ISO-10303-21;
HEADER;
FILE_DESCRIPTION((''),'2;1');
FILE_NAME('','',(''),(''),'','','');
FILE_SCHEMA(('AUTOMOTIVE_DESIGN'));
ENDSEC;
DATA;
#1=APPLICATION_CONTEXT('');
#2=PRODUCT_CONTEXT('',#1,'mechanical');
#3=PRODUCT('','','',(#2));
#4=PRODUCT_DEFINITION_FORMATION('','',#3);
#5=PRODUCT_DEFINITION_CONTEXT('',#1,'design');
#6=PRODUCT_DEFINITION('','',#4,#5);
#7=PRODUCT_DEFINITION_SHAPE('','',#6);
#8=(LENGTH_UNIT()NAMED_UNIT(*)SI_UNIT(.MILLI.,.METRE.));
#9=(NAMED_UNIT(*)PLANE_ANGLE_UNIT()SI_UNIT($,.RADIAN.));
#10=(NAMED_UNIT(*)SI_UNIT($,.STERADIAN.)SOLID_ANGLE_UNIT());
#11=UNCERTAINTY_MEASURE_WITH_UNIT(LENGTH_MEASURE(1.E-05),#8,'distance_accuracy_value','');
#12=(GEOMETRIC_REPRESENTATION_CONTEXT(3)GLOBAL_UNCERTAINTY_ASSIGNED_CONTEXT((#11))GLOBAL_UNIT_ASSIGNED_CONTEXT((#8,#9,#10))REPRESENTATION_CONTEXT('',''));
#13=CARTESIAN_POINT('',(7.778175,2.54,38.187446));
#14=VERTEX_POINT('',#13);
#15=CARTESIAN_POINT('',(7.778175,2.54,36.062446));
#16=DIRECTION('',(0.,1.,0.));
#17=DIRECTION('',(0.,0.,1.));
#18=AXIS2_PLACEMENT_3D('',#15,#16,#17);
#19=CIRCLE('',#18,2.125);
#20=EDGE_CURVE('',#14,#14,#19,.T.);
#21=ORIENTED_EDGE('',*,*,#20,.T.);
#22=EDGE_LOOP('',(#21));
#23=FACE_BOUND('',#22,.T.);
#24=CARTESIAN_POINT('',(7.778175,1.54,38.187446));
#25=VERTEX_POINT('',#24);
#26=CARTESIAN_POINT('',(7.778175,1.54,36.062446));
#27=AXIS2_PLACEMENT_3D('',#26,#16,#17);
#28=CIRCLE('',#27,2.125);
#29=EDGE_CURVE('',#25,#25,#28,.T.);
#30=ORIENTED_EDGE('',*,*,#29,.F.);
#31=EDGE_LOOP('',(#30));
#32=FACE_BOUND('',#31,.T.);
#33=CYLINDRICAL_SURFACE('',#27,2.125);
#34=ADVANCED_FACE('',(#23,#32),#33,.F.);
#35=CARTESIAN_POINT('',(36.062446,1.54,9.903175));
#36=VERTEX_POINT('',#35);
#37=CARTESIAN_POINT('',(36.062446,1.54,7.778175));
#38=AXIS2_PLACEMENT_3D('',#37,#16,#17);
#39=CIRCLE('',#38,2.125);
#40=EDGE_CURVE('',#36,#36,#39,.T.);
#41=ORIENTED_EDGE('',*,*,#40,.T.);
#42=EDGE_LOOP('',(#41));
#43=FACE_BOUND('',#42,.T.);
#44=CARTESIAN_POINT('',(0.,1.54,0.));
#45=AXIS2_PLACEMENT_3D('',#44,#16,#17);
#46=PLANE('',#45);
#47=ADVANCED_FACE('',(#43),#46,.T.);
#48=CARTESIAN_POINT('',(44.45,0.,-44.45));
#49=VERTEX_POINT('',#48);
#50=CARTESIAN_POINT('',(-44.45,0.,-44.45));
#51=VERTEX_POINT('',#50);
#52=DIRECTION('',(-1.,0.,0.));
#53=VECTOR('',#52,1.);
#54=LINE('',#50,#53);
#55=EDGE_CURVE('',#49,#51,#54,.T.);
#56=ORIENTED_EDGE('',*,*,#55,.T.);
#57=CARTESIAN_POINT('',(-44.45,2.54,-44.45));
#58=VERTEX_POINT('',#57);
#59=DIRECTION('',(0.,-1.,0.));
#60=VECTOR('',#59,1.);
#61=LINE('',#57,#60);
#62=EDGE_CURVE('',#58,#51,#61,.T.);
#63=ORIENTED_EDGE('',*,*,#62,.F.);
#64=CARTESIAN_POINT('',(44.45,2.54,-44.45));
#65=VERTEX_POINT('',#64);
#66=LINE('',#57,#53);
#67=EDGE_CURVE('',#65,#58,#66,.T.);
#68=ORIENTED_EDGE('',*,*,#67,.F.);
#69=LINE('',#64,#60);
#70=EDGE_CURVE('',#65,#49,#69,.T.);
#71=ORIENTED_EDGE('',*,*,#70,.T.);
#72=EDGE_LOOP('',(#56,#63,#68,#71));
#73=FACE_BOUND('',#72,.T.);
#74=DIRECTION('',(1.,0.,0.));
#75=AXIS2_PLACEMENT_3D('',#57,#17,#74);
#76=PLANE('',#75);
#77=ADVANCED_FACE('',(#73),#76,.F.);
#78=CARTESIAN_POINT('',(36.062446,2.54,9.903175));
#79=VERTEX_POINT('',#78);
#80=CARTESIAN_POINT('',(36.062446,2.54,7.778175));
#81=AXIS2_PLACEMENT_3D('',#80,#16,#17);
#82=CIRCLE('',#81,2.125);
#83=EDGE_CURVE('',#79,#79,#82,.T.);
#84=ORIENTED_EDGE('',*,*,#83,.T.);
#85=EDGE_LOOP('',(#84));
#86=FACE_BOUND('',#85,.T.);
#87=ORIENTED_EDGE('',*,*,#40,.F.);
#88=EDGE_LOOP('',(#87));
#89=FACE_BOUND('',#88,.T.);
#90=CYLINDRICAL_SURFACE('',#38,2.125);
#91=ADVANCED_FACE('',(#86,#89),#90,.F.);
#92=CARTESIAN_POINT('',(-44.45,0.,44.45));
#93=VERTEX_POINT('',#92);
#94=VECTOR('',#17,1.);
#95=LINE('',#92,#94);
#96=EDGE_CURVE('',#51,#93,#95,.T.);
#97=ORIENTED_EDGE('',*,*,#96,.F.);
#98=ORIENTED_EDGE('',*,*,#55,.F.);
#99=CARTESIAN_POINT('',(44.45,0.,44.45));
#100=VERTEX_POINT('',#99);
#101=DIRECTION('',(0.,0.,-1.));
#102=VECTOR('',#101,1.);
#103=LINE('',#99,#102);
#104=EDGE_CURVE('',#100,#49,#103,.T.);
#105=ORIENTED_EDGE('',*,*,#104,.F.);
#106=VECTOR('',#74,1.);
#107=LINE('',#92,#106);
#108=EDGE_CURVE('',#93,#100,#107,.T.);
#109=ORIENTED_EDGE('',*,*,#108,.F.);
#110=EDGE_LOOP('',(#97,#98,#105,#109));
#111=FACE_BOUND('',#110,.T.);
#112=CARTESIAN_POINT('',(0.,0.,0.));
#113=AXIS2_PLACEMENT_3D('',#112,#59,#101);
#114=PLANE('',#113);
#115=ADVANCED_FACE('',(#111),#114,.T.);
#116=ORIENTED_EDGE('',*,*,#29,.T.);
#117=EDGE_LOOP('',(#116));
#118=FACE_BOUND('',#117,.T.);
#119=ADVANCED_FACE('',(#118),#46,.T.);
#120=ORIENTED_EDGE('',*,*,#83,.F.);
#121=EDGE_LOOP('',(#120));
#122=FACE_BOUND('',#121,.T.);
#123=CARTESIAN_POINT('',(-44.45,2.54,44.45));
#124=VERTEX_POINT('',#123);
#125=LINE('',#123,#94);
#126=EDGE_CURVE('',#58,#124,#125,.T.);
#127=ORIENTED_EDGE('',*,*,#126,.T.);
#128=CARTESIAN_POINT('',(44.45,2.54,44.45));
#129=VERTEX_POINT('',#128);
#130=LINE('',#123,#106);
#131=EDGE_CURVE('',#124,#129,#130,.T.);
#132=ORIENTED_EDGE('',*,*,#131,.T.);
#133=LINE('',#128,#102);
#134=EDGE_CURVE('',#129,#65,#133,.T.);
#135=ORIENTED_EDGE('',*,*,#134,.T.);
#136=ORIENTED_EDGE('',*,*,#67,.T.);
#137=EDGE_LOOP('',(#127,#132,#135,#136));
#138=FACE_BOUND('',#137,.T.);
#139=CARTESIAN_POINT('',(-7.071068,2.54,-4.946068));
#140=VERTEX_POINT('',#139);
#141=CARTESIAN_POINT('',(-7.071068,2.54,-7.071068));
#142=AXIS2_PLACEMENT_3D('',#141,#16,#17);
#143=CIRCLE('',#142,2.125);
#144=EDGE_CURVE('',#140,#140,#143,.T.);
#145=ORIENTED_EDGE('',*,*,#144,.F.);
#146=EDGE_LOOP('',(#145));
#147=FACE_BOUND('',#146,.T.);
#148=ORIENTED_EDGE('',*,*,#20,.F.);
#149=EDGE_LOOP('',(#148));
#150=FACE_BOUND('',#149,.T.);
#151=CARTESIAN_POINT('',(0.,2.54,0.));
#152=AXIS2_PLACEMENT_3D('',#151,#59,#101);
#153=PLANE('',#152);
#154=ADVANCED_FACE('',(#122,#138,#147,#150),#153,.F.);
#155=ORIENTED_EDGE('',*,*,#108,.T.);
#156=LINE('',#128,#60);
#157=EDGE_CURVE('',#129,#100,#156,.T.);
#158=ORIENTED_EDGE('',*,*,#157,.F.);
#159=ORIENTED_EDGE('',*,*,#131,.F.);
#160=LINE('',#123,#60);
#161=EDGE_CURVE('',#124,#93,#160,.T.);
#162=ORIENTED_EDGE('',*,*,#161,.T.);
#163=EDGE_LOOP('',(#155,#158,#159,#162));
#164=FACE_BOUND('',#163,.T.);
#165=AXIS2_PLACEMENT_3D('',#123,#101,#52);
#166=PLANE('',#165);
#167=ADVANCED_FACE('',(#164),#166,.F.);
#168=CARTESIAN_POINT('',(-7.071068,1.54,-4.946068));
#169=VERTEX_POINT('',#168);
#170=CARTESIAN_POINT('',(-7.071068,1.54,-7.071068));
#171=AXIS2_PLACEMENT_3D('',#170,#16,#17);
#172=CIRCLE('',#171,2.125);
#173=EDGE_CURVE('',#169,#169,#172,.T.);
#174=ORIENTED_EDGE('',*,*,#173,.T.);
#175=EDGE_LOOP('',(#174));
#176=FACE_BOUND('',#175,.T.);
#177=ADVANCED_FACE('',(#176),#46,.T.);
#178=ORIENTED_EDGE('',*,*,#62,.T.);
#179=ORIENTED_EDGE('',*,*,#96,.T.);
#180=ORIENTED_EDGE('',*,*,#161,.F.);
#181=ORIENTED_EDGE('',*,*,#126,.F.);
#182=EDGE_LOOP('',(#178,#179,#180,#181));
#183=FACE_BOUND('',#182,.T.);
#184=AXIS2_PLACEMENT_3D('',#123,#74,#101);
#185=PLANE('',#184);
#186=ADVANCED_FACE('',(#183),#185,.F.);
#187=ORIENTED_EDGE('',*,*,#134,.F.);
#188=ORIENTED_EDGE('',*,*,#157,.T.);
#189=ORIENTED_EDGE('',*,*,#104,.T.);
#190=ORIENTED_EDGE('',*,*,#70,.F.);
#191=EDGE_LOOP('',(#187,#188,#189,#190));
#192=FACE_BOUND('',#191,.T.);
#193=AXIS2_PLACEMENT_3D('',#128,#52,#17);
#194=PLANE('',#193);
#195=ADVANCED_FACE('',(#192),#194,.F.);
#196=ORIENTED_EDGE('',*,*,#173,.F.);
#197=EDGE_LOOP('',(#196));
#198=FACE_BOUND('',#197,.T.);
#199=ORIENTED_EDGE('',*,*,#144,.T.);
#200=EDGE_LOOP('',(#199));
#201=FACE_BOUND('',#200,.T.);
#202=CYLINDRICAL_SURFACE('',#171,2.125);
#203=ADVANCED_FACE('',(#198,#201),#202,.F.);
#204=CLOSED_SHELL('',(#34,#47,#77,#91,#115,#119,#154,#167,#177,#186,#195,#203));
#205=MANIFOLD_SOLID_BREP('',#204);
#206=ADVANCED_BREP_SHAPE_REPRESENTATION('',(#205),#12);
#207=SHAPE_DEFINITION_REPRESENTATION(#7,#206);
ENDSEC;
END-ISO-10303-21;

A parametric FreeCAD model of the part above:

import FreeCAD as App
import Part
import Sketcher
Q = App.Units.Quantity

doc = App.newDocument("Part")
body = doc.addObject("PartDesign::Body", "Body")

sketch1 = body.newObject("Sketcher::SketchObject", "Sketch")
sketch1.AttachmentSupport = (doc.getObject("XZ_Plane"), [""])
sketch1.MapMode = "FlatFace"
sketch1.addGeometry([
    Part.LineSegment(App.Vector(-44, -44, 0), App.Vector(-44, 44, 0)),
    Part.LineSegment(App.Vector(-44, 44, 0), App.Vector(44, 44, 0)),
    Part.LineSegment(App.Vector(44, 44, 0), App.Vector(44, -44, 0)),
    Part.LineSegment(App.Vector(44, -44, 0), App.Vector(-44, -44, 0)),
], False)
sketch1.addConstraint([
    Sketcher.Constraint("Coincident", 0, 2, 1, 1),
    Sketcher.Constraint("Coincident", 1, 2, 2, 1),
    Sketcher.Constraint("Coincident", 2, 2, 3, 1),
    Sketcher.Constraint("Coincident", 3, 2, 0, 1),
    Sketcher.Constraint("Vertical", 0),
    Sketcher.Constraint("Horizontal", 1),
    Sketcher.Constraint("Vertical", 2),
    Sketcher.Constraint("Horizontal", 3),
    Sketcher.Constraint("Symmetric", 0, 2, 2, 2, -1, 1),
    Sketcher.Constraint("Equal", 3, 0),
    Sketcher.Constraint("DistanceX", 1, 1, 1, 2, Q("3.5 in")),
])
pad1 = body.newObject("PartDesign::Pad", "Pad")
pad1.Profile = sketch1
pad1.Length = Q("0.1 in")
pad1.Reversed = True

sketch2 = body.newObject("Sketcher::SketchObject", "Sketch001")
sketch2.AttachmentSupport = (doc.getObject("XZ_Plane"), [""])
sketch2.MapMode = "FlatFace"
sketch2.AttachmentOffset = App.Placement(App.Vector(0, 0, -0.1 * 25.4), App.Rotation())
sketch2.addGeometry([
    Part.Circle(App.Vector(-7.1, -7.1, 0), App.Vector(0, 0, 1), 2.1),
    Part.Circle(App.Vector(36.1, 7.8, 0), App.Vector(0, 0, 1), 2.1),
    Part.Circle(App.Vector(7.8, 36.1, 0), App.Vector(0, 0, 1), 2.1),
], False)
sketch2.addConstraint([
    Sketcher.Constraint("Equal", 0, 1),
    Sketcher.Constraint("Equal", 1, 2),
    Sketcher.Constraint("Diameter", 0, 4.25),
    Sketcher.Constraint("DistanceX", 2, 3, 1, 3, 28.284271),
    Sketcher.Constraint("DistanceY", 1, 3, 2, 3, 28.284271),
    Sketcher.Constraint("DistanceX", 0, 3, -1, 1, 7.071068),
    Sketcher.Constraint("DistanceY", 0, 3, -1, 1, 7.071068),
    Sketcher.Constraint("DistanceX", -1, 1, 1, 3, 36.062446),
    Sketcher.Constraint("DistanceY", -1, 1, 1, 3, 7.778175),
])
pocket1 = body.newObject("PartDesign::Pocket", "Pocket")
pocket1.Profile = sketch2
pocket1.Length = 1
pocket1.Reversed = True

doc.recompute()
